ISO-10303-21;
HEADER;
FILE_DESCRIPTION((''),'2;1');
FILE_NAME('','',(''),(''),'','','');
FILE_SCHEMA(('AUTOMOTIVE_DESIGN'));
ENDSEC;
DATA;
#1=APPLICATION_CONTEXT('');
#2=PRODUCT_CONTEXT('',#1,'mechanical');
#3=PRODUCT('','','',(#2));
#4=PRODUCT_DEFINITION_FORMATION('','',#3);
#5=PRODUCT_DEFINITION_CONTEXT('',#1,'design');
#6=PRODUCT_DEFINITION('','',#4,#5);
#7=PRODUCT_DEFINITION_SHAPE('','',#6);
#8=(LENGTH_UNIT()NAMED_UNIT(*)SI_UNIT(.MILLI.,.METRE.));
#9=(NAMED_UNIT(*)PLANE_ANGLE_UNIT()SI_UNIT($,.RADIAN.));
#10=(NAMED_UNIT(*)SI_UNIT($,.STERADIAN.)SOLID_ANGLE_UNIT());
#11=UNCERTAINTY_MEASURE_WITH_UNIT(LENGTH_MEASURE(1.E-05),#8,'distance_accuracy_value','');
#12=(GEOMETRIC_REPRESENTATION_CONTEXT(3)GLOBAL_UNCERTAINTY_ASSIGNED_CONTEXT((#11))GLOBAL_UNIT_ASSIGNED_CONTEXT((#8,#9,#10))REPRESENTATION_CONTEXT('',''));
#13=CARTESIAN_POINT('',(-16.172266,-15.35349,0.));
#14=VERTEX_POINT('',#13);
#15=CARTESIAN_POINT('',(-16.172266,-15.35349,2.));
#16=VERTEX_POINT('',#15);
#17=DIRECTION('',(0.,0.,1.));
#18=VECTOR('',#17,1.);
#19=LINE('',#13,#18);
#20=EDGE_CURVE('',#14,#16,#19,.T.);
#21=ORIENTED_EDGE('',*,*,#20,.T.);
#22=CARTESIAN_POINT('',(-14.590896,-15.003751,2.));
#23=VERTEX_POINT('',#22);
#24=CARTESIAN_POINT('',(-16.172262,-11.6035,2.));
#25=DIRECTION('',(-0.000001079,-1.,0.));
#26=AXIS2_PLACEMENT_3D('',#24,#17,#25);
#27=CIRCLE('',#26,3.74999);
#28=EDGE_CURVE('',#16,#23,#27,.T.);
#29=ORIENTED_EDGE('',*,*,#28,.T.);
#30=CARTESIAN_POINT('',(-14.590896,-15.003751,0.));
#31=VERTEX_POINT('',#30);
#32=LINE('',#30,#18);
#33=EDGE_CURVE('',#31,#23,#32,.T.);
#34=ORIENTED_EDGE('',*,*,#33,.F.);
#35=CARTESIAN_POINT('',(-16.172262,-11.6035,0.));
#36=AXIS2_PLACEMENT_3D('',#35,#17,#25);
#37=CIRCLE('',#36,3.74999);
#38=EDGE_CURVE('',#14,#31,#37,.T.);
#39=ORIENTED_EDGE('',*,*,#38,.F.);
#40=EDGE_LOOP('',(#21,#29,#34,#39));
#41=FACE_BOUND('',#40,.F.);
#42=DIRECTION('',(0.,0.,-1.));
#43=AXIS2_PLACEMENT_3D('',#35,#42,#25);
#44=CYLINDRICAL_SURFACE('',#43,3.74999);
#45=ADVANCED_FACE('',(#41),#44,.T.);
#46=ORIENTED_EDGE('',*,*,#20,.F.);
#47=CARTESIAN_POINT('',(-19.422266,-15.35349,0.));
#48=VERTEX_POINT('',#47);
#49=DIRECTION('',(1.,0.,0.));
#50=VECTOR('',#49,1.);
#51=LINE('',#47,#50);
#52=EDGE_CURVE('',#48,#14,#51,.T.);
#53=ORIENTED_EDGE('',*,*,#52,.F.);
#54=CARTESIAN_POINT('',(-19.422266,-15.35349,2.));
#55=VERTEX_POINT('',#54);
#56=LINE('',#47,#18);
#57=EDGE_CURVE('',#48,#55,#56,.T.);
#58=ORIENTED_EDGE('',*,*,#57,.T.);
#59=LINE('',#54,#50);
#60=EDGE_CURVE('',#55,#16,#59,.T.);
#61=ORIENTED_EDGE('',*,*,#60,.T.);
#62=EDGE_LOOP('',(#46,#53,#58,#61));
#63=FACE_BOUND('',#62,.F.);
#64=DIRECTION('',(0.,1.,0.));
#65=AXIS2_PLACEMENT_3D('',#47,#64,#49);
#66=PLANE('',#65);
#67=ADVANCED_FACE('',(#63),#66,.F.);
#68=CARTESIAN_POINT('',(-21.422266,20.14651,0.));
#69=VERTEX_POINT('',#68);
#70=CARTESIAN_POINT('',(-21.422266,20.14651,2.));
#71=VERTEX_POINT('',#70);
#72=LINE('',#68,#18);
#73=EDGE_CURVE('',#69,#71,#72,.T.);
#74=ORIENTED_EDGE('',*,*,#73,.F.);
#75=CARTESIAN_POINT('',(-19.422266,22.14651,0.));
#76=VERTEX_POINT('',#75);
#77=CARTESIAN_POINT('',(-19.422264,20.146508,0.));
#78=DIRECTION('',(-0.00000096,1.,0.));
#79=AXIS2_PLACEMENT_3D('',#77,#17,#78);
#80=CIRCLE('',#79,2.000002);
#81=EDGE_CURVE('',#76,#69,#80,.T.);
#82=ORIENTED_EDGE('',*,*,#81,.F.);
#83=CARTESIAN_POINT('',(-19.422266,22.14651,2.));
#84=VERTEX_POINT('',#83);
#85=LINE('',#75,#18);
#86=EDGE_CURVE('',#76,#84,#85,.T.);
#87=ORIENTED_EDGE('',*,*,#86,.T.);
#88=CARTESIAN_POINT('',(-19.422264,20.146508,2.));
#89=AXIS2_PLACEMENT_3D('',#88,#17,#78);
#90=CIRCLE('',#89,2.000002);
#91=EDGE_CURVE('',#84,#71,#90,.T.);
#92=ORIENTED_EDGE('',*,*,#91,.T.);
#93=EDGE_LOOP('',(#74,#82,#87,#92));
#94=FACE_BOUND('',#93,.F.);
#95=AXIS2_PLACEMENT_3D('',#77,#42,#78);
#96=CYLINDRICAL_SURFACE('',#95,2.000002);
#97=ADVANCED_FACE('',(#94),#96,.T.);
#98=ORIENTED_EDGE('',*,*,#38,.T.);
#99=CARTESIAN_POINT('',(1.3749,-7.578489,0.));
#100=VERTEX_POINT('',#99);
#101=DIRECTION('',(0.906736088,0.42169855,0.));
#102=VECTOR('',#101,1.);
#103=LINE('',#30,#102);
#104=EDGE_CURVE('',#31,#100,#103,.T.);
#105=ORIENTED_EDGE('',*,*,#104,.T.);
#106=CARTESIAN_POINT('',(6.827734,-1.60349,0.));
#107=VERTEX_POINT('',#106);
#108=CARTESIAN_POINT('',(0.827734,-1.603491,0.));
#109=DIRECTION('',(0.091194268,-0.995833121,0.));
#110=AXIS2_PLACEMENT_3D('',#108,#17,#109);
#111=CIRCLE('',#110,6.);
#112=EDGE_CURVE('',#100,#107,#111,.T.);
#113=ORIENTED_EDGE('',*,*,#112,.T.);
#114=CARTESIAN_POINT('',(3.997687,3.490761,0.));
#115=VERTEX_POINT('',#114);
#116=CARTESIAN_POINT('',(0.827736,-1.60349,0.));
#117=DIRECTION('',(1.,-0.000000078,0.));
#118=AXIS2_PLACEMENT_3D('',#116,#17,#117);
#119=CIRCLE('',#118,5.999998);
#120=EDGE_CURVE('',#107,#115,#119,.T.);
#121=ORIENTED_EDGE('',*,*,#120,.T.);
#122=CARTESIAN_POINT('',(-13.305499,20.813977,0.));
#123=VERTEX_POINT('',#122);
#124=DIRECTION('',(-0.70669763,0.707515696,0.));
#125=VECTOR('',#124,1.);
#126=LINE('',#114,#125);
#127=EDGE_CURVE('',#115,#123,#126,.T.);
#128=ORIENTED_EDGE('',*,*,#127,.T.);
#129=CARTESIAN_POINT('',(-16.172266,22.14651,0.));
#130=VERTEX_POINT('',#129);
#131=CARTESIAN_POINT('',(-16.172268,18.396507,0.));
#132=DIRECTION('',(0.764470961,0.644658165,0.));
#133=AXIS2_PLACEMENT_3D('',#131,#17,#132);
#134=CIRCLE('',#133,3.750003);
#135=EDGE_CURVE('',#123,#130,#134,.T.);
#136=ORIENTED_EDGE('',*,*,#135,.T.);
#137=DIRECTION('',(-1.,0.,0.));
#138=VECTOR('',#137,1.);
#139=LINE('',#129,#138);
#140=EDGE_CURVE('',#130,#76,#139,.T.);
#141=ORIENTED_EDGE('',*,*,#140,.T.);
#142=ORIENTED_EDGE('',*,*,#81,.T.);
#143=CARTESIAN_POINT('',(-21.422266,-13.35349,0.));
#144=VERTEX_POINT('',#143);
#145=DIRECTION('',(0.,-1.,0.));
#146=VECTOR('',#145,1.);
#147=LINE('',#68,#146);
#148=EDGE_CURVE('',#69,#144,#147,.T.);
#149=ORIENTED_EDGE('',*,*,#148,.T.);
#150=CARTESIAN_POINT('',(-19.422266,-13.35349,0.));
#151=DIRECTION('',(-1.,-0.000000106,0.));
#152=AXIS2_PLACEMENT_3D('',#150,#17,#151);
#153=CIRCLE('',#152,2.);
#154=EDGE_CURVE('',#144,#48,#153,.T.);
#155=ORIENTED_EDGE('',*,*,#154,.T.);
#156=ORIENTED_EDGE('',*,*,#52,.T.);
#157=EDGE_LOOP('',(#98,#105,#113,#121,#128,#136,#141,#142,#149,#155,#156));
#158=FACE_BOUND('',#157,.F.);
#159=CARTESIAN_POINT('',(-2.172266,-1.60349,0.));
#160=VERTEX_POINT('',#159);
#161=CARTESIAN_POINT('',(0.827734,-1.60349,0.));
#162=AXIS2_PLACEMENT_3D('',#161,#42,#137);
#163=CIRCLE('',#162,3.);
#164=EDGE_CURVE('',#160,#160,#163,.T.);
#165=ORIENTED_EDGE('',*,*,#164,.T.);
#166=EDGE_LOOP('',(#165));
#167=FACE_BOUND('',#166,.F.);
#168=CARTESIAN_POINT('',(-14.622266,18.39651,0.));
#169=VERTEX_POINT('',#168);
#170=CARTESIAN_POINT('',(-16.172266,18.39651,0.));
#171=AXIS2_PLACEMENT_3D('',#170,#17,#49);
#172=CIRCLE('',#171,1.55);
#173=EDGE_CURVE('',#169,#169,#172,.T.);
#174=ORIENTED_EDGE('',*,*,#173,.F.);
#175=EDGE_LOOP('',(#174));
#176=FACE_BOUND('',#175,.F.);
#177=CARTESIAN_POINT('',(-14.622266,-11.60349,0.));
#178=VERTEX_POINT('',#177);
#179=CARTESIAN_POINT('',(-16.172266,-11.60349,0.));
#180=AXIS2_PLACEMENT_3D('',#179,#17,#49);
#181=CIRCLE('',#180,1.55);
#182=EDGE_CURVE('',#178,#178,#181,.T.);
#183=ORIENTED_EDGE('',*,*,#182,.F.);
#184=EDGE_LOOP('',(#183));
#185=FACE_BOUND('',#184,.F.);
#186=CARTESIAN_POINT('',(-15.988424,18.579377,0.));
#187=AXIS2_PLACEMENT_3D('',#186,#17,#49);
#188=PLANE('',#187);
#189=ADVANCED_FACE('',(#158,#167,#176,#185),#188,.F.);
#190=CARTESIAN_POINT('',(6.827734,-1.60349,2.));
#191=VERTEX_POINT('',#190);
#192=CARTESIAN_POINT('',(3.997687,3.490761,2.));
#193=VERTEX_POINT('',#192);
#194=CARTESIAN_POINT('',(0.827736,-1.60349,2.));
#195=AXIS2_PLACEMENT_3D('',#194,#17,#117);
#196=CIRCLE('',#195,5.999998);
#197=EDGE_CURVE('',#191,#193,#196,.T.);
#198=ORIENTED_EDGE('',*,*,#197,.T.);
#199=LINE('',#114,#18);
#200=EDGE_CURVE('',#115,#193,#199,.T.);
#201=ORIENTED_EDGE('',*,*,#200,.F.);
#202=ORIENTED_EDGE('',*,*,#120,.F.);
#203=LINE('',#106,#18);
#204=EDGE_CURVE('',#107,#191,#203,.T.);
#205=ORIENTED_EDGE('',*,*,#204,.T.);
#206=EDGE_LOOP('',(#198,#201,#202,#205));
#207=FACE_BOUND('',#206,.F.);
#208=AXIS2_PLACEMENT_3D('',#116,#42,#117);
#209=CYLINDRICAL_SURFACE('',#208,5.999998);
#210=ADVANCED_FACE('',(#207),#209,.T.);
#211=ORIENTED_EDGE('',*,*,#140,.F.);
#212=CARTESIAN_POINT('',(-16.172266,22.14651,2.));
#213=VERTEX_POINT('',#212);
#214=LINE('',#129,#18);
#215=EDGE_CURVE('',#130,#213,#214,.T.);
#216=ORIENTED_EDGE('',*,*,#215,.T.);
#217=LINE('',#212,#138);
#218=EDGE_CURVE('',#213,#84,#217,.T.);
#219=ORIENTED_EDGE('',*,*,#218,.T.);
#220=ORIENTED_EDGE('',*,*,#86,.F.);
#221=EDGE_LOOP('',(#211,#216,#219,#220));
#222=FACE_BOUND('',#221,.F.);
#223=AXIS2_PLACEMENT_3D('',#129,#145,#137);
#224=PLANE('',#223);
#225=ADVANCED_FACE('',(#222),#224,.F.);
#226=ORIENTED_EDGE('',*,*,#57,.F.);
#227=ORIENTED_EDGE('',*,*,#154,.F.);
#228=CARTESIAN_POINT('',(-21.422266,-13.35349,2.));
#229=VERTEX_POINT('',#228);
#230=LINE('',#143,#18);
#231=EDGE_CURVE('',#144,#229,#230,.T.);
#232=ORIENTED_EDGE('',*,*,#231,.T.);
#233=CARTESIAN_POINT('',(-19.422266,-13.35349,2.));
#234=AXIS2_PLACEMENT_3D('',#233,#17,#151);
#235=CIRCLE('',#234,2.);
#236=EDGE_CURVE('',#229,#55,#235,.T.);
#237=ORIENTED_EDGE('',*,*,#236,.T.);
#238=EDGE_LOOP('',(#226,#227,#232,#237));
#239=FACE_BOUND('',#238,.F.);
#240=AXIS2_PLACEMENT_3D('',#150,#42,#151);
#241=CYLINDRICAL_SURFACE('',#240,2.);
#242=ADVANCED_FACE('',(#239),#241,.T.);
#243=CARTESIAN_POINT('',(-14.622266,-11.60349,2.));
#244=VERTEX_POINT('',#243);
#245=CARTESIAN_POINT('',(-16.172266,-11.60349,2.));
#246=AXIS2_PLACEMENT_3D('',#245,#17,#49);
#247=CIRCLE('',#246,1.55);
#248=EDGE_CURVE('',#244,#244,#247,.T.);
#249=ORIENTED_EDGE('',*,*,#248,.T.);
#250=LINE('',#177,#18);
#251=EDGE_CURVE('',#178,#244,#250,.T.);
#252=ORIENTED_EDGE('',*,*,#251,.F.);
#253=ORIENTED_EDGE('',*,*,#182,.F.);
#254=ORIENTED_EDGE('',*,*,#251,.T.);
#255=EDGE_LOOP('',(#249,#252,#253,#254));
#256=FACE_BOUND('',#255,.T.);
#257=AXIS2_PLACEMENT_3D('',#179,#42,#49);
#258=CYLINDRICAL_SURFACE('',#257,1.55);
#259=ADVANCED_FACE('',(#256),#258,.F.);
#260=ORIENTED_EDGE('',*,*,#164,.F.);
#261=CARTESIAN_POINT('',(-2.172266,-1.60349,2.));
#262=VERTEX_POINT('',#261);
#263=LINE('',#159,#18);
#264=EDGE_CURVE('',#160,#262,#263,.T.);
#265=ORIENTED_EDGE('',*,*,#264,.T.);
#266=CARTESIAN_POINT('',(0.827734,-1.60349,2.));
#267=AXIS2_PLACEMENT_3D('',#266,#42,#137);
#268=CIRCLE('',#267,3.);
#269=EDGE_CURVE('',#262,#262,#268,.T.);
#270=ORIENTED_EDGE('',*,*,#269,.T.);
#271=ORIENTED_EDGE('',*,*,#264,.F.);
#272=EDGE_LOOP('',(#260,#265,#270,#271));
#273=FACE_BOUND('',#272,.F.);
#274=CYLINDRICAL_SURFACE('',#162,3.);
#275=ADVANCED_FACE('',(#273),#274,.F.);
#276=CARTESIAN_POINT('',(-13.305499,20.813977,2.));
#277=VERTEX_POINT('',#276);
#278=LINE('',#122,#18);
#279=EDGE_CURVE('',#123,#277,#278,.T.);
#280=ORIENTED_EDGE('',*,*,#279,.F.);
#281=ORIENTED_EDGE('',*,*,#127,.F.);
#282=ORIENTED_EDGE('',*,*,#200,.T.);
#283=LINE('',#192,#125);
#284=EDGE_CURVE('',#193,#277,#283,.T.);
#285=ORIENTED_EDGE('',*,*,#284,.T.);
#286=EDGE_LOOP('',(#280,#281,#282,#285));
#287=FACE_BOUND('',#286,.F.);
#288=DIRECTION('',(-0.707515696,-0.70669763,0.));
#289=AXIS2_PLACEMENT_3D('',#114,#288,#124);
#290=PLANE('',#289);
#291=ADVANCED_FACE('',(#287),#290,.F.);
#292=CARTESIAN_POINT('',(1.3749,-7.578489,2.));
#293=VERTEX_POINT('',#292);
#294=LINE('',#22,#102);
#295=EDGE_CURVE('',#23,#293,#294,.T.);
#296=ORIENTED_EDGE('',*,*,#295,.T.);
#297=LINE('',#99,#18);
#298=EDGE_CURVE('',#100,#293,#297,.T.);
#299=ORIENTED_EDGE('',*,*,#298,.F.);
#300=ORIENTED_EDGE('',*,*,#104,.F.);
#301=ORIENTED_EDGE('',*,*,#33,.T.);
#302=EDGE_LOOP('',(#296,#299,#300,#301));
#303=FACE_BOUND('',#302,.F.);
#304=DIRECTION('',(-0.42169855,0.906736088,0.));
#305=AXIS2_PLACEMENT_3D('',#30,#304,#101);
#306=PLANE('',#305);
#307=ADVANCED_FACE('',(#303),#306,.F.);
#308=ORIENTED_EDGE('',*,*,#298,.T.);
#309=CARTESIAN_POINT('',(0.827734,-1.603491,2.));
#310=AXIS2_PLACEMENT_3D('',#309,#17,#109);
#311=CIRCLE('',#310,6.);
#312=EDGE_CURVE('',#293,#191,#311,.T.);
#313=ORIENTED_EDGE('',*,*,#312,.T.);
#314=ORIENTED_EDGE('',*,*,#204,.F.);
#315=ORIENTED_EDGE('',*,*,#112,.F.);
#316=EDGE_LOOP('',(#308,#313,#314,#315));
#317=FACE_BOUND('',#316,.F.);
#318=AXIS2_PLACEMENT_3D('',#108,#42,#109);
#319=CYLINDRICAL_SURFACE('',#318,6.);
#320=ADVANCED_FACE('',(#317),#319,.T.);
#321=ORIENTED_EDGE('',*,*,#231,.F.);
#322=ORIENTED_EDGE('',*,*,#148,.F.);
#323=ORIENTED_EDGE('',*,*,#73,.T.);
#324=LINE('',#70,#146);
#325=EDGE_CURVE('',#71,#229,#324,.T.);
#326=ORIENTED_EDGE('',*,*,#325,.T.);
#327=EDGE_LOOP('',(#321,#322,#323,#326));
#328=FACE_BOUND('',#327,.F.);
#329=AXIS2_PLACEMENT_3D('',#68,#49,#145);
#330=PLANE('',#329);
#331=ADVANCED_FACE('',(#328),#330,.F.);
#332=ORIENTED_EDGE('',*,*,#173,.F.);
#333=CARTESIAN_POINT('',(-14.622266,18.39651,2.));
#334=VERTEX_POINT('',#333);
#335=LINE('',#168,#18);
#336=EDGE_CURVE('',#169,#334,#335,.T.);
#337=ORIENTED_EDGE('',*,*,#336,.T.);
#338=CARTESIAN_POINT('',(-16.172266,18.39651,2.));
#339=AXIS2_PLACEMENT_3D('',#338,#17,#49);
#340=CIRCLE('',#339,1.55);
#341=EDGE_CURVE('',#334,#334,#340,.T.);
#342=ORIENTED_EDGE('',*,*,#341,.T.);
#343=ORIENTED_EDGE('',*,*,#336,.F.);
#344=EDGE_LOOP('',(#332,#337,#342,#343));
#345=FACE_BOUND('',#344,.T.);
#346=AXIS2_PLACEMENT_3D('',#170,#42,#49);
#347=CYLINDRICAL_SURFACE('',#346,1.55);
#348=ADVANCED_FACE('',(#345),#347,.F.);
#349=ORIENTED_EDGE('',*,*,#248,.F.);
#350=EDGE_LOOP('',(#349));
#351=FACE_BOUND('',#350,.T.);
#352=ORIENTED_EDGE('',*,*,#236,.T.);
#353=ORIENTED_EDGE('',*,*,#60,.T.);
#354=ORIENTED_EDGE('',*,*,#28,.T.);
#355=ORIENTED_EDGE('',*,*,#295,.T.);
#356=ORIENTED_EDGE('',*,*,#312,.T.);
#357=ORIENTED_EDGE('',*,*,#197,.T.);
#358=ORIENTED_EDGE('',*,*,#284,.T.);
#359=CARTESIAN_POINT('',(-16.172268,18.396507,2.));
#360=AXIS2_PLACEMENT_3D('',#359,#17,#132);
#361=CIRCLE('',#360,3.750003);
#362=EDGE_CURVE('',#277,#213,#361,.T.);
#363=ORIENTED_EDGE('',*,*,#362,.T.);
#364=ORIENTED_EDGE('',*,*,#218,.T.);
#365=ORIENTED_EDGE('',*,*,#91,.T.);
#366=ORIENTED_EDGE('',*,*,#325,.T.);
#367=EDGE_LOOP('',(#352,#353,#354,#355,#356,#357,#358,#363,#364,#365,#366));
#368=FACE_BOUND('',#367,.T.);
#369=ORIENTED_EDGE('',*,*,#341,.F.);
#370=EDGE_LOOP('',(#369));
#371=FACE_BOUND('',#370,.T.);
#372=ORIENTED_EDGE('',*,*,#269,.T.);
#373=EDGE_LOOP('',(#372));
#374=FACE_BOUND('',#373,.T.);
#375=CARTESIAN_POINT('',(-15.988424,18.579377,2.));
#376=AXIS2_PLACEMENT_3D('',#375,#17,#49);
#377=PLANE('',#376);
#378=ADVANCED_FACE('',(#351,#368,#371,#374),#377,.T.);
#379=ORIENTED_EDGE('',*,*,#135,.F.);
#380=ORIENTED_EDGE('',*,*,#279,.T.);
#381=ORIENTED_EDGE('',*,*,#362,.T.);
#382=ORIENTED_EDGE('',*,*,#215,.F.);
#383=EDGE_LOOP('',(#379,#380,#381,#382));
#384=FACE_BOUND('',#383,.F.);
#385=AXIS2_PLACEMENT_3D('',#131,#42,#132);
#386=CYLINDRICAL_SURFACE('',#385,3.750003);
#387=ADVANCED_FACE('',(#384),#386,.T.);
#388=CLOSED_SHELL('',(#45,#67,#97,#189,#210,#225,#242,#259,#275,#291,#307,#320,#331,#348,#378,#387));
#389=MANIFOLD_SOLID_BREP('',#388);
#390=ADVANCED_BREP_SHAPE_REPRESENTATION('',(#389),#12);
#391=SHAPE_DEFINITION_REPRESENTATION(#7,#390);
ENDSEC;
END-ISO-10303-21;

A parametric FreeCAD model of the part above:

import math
import FreeCAD as App
import Part
import Sketcher
Q = App.Units.Quantity

doc = App.newDocument("Part")
body = doc.addObject("PartDesign::Body", "Body")

# Sketch on XY plane
sketch1 = body.newObject("Sketcher::SketchObject", "Sketch")
sketch1.AttachmentSupport = (doc.getObject("XY_Plane"), [""])
sketch1.MapMode = "FlatFace"
sketch1.addGeometry([
    Part.ArcOfCircle(Part.Circle(App.Vector(-16.2, 18.4, 0), App.Vector(0, 0, 1), 3.8), math.radians(40), math.radians(90)),  # 0
    Part.LineSegment(App.Vector(-16.2, 22.1, 0), App.Vector(-19.4, 22.1, 0)),  # 1
    Part.ArcOfCircle(Part.Circle(App.Vector(-19.4, 20.1, 0), App.Vector(0, 0, 1), 2), math.radians(90), math.radians(180)),  # 2
    Part.LineSegment(App.Vector(-21.4, 20.1, 0), App.Vector(-21.4, -13.4, 0)),  # 3
    Part.ArcOfCircle(Part.Circle(App.Vector(-19.4, -13.4, 0), App.Vector(0, 0, 1), 2), math.radians(-180), math.radians(-90)),  # 4
    Part.LineSegment(App.Vector(-19.4, -15.4, 0), App.Vector(-16.2, -15.4, 0)),  # 5
    Part.ArcOfCircle(Part.Circle(App.Vector(-16.2, -11.6, 0), App.Vector(0, 0, 1), 3.7), math.radians(-90), math.radians(-65)),  # 6
    Part.LineSegment(App.Vector(-14.6, -15, 0), App.Vector(1.4, -7.6, 0)),  # 7
    Part.ArcOfCircle(Part.Circle(App.Vector(0.8, -1.6, 0), App.Vector(0, 0, 1), 6), math.radians(-85), math.radians(0)),  # 8
    Part.ArcOfCircle(Part.Circle(App.Vector(0.8, -1.6, 0), App.Vector(0, 0, 1), 6), math.radians(0), math.radians(58)),  # 9
    Part.LineSegment(App.Vector(4, 3.5, 0), App.Vector(-13.3, 20.8, 0)),  # 10
    Part.Circle(App.Vector(-16.2, -11.6, 0), App.Vector(0, 0, 1), 1.6),  # 11
    Part.Circle(App.Vector(0.8, -1.6, 0), App.Vector(0, 0, 1), 3),  # 12
    Part.Circle(App.Vector(-16.2, 18.4, 0), App.Vector(0, 0, 1), 1.6),  # 13
], False)
sketch1.addConstraint([
    Sketcher.Constraint("Tangent", 0, 2, 1, 1),
    Sketcher.Constraint("Tangent", 1, 2, 2, 1),
    Sketcher.Constraint("Tangent", 2, 2, 3, 1),
    Sketcher.Constraint("Tangent", 3, 2, 4, 1),
    Sketcher.Constraint("Tangent", 4, 2, 5, 1),
    Sketcher.Constraint("Tangent", 5, 2, 6, 1),
    Sketcher.Constraint("Tangent", 6, 2, 7, 1),
    Sketcher.Constraint("Coincident", 7, 2, 8, 1),
    Sketcher.Constraint("Tangent", 8, 2, 9, 1),
    Sketcher.Constraint("Coincident", 9, 2, 10, 1),
    Sketcher.Constraint("Coincident", 10, 2, 0, 1),
    Sketcher.Constraint("Horizontal", 1),
    Sketcher.Constraint("Vertical", 3),
    Sketcher.Constraint("Horizontal", 5),
    Sketcher.Constraint("Coincident", 12, 3, 8, 3),
    Sketcher.Constraint("Coincident", 13, 3, 0, 3),
    Sketcher.Constraint("Equal", 2, 4),
    Sketcher.Constraint("Equal", 8, 9),
    Sketcher.Constraint("Equal", 11, 13),
    Sketcher.Constraint("Horizontal", 12, 3, 8, 2),
    Sketcher.Constraint("Vertical", 0, 3, 11, 3),
    Sketcher.Constraint("Vertical", 0, 2, 5, 2),
    Sketcher.Constraint("Diameter", 12, Q("6 mm")),
    Sketcher.Constraint("Radius", 2, Q("2.000002 mm")),
    Sketcher.Constraint("Radius", 8, Q("6 mm")),
    Sketcher.Constraint("Diameter", 11, Q("3.1 mm")),
    Sketcher.Constraint("DistanceY", 3, 2, 3, 1, Q("33.5 mm")),
    Sketcher.Constraint("DistanceX", 0, 3, 8, 3, Q("17.000002 mm")),
    Sketcher.Constraint("DistanceY", 11, 3, 8, 3, Q("9.999999 mm")),
    Sketcher.Constraint("DistanceY", 12, 3, 13, 3, Q("20 mm")),
    Sketcher.Constraint("DistanceX", 1, 2, 1, 1, Q("3.25 mm")),
    Sketcher.Constraint("Radius", 6, Q("3.74999 mm")),
    Sketcher.Constraint("DistanceY", 0, 3, 2, 3, Q("1.750001 mm")),
    Sketcher.Constraint("DistanceY", 7, 2, 8, 3, Q("5.974998 mm")),
    Sketcher.Constraint("DistanceY", 6, 3, -1, 1, Q("11.6035 mm")),
    Sketcher.Constraint("DistanceX", -1, 1, 7, 2, Q("1.3749 mm")),
    Sketcher.Constraint("DistanceX", 10, 2, -1, 1, Q("13.305499 mm")),
    Sketcher.Constraint("DistanceY", -1, 1, 9, 2, Q("3.490761 mm")),
])
pad1 = body.newObject("PartDesign::Pad", "Pad")
pad1.Profile = sketch1
pad1.Length = 2

doc.recompute()
